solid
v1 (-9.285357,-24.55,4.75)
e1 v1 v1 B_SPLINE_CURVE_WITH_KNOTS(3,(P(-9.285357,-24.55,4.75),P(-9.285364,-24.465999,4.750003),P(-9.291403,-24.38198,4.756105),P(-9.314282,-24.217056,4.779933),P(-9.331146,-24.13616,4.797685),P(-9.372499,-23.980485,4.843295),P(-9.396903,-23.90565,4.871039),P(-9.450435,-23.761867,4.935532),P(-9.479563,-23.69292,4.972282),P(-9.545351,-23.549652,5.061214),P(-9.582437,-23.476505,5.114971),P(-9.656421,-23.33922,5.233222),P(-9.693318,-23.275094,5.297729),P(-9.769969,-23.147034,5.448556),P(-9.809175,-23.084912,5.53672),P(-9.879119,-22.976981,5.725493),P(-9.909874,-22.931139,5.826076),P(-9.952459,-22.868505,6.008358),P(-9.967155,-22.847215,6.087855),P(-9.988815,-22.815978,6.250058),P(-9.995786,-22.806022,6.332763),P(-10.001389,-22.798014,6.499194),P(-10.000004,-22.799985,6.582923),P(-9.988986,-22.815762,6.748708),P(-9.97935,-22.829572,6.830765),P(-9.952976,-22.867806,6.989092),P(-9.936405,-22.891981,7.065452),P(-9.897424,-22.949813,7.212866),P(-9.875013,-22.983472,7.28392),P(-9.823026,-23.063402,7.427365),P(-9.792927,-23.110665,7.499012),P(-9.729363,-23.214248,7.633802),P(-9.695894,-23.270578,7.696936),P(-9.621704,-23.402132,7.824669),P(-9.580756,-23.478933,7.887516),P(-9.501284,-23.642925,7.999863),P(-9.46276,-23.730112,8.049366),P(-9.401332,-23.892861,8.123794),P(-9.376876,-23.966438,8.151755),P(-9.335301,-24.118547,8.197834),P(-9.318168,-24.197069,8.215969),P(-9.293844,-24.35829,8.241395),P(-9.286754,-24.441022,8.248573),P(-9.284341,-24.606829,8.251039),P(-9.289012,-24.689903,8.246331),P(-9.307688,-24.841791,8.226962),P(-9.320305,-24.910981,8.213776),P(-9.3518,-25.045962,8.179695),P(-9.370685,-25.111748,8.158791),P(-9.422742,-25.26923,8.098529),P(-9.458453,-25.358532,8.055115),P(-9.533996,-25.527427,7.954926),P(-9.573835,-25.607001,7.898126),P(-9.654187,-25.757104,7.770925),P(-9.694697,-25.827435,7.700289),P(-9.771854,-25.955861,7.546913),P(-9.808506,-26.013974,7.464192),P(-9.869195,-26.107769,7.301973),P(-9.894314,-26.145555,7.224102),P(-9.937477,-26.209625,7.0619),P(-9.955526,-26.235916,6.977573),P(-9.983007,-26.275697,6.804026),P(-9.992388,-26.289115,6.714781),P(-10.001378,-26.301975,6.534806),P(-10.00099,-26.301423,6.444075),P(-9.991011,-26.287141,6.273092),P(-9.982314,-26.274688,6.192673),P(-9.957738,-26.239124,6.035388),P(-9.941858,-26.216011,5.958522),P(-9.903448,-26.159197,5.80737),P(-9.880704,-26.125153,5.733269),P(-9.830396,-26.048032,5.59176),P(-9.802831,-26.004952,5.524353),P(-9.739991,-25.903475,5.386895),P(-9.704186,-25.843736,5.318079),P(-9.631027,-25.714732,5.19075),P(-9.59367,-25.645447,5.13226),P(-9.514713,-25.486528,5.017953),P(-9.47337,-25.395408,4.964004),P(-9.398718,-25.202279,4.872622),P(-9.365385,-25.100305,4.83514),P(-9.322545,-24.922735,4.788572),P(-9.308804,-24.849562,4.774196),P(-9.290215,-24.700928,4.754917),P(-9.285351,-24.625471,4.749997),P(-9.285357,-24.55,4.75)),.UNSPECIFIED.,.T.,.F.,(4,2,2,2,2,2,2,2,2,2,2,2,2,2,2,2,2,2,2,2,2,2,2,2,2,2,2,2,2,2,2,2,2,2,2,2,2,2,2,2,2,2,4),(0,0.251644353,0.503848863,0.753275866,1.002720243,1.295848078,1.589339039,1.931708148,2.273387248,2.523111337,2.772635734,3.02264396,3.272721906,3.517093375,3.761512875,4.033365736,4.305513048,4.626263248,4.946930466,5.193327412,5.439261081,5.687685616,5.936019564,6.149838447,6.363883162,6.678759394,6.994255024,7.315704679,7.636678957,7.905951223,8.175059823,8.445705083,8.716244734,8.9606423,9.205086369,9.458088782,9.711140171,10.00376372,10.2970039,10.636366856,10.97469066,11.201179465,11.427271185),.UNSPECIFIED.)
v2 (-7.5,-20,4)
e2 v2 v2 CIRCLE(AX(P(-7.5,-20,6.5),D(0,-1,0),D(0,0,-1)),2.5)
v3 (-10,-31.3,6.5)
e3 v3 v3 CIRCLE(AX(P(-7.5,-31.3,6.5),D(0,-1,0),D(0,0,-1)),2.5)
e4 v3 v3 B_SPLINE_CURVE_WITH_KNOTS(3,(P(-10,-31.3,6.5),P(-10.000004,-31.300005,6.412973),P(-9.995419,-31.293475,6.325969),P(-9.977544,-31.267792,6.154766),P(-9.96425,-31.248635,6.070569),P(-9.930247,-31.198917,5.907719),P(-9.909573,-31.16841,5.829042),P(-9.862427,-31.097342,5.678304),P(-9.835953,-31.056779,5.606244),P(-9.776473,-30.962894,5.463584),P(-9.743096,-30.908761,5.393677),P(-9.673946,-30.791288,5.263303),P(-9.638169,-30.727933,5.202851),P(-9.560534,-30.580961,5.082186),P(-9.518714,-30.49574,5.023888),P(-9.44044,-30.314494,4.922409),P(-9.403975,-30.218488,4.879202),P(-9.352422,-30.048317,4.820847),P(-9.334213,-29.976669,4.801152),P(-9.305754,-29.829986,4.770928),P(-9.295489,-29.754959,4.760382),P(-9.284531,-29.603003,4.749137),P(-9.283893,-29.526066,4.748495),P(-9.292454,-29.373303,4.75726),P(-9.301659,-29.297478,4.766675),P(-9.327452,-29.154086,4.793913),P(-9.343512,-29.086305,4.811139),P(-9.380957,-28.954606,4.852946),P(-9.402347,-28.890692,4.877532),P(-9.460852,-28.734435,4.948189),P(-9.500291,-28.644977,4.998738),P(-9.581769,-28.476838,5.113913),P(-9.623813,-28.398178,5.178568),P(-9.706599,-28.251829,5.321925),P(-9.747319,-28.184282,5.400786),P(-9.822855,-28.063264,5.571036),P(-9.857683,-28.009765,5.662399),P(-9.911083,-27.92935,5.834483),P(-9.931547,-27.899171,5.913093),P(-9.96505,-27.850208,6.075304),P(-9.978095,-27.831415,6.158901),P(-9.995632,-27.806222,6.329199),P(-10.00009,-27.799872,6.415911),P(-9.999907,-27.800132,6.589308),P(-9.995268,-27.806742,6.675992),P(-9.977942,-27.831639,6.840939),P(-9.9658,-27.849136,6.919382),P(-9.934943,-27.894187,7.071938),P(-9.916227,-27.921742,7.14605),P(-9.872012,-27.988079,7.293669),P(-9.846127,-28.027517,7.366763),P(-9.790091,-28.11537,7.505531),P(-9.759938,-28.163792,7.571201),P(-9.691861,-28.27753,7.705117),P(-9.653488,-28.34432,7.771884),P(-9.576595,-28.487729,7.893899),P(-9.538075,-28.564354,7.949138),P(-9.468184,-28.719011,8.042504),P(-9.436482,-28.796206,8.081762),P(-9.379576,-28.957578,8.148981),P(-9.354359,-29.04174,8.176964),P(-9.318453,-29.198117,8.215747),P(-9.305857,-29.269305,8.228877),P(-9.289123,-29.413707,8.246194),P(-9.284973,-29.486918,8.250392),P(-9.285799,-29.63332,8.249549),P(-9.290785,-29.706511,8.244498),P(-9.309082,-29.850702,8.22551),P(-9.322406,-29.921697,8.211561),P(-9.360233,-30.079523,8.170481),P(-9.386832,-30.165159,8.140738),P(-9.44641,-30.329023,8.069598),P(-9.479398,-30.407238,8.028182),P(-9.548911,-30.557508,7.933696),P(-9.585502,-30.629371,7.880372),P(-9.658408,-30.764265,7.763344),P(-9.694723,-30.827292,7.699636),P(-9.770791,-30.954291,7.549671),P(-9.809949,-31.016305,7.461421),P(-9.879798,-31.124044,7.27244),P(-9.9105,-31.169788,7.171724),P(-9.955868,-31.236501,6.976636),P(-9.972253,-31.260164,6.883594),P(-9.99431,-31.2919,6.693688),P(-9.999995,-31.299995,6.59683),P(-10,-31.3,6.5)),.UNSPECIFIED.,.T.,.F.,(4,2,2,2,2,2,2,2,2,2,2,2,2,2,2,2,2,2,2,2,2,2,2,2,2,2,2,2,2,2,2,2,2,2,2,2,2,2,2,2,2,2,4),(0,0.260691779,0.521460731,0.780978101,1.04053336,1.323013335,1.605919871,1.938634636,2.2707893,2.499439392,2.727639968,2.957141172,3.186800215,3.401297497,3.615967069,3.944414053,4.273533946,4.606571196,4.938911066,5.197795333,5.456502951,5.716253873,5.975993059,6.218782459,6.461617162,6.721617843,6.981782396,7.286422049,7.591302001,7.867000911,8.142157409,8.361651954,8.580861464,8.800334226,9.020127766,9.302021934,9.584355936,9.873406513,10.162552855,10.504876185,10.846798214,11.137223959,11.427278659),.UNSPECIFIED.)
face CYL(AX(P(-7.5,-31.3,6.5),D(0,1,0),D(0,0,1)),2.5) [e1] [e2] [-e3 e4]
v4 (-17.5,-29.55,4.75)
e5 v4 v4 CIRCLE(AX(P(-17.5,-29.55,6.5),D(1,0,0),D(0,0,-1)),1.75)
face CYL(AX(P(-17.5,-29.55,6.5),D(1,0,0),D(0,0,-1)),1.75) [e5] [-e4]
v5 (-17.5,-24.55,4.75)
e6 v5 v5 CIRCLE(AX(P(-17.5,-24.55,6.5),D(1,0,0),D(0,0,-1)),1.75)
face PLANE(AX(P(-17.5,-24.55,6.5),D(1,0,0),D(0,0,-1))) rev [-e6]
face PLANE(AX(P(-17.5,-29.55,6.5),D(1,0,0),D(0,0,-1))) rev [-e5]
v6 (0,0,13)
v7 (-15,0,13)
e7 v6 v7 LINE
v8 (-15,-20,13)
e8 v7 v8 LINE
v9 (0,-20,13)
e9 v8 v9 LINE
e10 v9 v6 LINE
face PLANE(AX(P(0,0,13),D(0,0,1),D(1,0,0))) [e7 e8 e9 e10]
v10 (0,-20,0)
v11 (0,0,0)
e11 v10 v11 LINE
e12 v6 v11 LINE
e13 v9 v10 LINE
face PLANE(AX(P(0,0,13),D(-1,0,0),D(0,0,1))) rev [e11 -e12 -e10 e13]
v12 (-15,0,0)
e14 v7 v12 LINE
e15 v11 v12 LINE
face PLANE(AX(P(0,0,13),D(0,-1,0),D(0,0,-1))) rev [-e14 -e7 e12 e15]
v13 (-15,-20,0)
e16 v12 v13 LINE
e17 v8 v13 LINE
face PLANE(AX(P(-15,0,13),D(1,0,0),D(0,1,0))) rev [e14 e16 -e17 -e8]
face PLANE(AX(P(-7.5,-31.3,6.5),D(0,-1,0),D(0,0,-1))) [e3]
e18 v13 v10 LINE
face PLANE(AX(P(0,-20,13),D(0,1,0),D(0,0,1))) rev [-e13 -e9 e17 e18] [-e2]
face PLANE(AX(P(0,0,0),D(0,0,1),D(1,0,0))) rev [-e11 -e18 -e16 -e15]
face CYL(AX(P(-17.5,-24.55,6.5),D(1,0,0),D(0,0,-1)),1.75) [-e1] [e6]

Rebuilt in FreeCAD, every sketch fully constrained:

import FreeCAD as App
import Part
import Sketcher


def add_polygon(sketch, points):
    """Adds a closed chain of lines whose ends are joined by coincident constraints."""
    first, n = sketch.GeometryCount, len(points)
    for a, b in zip(points, points[1:] + points[:1]):
        sketch.addGeometry(Part.LineSegment(App.Vector(*a, 0), App.Vector(*b, 0)), False)
    for i in range(n):
        sketch.addConstraint(Sketcher.Constraint("Coincident", first + i, 2, first + (i + 1) % n, 1))

doc = App.newDocument("Part")
body = doc.addObject("PartDesign::Body", "Body")

sketch1 = body.newObject("Sketcher::SketchObject", "Sketch")
sketch1.AttachmentSupport = (doc.getObject("XY_Plane"), [""])
sketch1.MapMode = "FlatFace"
add_polygon(sketch1, [(-15, -20), (0, -20), (0, 0), (-15, 0)])
sketch1.addConstraint([
    Sketcher.Constraint("Horizontal", 0),
    Sketcher.Constraint("Vertical", 1),
    Sketcher.Constraint("Horizontal", 2),
    Sketcher.Constraint("Vertical", 3),
    Sketcher.Constraint("Coincident", 1, 2, -1, 1),
    Sketcher.Constraint("DistanceX", 0, 1, 0, 2, 15.0),
    Sketcher.Constraint("DistanceY", 1, 1, 1, 2, 20.0),
])
pad1 = body.newObject("PartDesign::Pad", "Pad")
pad1.Profile = sketch1
pad1.Length = 13

sketch2 = body.newObject("Sketcher::SketchObject", "Sketch001")
sketch2.AttachmentSupport = (doc.getObject("XZ_Plane"), [""])
sketch2.MapMode = "FlatFace"
sketch2.AttachmentOffset = App.Placement(App.Vector(0, 0, 20), App.Rotation())
sketch2.addGeometry(Part.Circle(App.Vector(-7.5, 6.5, 0), App.Vector(0, 0, 1), 2.5), False)
sketch2.addConstraint([
    Sketcher.Constraint("Diameter", 0, 5.0),
    Sketcher.Constraint("DistanceX", 0, 3, -1, 1, 7.5),
    Sketcher.Constraint("DistanceY", -1, 1, 0, 3, 6.5),
])
pad2 = body.newObject("PartDesign::Pad", "Pad001")
pad2.Profile = sketch2
pad2.Length = 11.3

sketch3 = body.newObject("Sketcher::SketchObject", "Sketch002")
sketch3.AttachmentSupport = (doc.getObject("YZ_Plane"), [""])
sketch3.MapMode = "FlatFace"
sketch3.AttachmentOffset = App.Placement(App.Vector(0, 0, -7.5), App.Rotation())
sketch3.addGeometry([
    Part.Circle(App.Vector(-29.6, 6.5, 0), App.Vector(0, 0, 1), 1.8),
    Part.Circle(App.Vector(-24.6, 6.5, 0), App.Vector(0, 0, 1), 1.8),
], False)
sketch3.addConstraint([
    Sketcher.Constraint("Equal", 0, 1),
    Sketcher.Constraint("Horizontal", 0, 3, 1, 3),
    Sketcher.Constraint("Diameter", 0, 3.5),
    Sketcher.Constraint("DistanceX", 0, 3, 1, 3, 5.0),
    Sketcher.Constraint("DistanceY", -1, 1, 0, 3, 6.5),
    Sketcher.Constraint("DistanceX", 0, 3, -1, 1, 29.55),
])
pad3 = body.newObject("PartDesign::Pad", "Pad002")
pad3.Profile = sketch3
pad3.Length = 10
pad3.Reversed = True

doc.recompute()
